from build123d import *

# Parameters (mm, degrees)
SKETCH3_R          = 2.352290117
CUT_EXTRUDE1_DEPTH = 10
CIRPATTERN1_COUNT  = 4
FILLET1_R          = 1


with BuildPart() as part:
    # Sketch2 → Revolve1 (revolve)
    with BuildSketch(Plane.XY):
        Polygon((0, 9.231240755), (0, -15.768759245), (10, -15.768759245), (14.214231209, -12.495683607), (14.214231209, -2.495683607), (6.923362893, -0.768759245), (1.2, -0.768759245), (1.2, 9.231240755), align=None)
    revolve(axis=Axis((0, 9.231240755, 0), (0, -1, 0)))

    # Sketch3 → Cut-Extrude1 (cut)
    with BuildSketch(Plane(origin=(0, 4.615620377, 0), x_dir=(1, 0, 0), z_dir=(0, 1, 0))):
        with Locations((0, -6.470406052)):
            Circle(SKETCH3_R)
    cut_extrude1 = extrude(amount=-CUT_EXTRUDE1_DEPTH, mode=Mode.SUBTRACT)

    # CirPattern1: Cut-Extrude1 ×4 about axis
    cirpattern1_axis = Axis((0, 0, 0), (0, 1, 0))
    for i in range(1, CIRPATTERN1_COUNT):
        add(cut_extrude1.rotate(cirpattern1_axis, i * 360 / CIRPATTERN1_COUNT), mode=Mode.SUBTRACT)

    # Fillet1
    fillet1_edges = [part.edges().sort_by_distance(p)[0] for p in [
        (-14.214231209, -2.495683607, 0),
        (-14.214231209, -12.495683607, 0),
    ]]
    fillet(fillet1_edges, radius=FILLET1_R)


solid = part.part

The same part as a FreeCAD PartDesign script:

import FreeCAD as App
import Part
import Sketcher

V = App.Vector


def edges_at(feature, points):
    """Names of the edges that pass closest to the given points."""
    edges = feature.Shape.Edges
    near = lambda p: min(range(len(edges)), key=lambda i: edges[i].distToShape(Part.Vertex(*p))[0])
    return sorted({f"Edge{near(p) + 1}" for p in points})

doc = App.newDocument("Part")
body = doc.addObject("PartDesign::Body", "Body")

sketch1 = body.newObject("Sketcher::SketchObject", "Sketch")
sketch1.AttachmentSupport = (doc.getObject("XY_Plane"), [""])
sketch1.MapMode = "FlatFace"
sketch1.addGeometry([
    Part.LineSegment(V(0, 9.2, 0), V(0, -15.8, 0)),
    Part.LineSegment(V(0, -15.8, 0), V(10, -15.8, 0)),
    Part.LineSegment(V(10, -15.8, 0), V(14.2, -12.5, 0)),
    Part.LineSegment(V(14.2, -12.5, 0), V(14.2, -2.5, 0)),
    Part.LineSegment(V(14.2, -2.5, 0), V(6.9, -0.8, 0)),
    Part.LineSegment(V(6.9, -0.8, 0), V(1.2, -0.8, 0)),
    Part.LineSegment(V(1.2, -0.8, 0), V(1.2, 9.2, 0)),
    Part.LineSegment(V(1.2, 9.2, 0), V(0, 9.2, 0)),
], False)
sketch1.addConstraint([
    Sketcher.Constraint("Coincident", 0, 2, 1, 1),
    Sketcher.Constraint("Coincident", 1, 2, 2, 1),
    Sketcher.Constraint("Coincident", 2, 2, 3, 1),
    Sketcher.Constraint("Coincident", 3, 2, 4, 1),
    Sketcher.Constraint("Coincident", 4, 2, 5, 1),
    Sketcher.Constraint("Coincident", 5, 2, 6, 1),
    Sketcher.Constraint("Coincident", 6, 2, 7, 1),
    Sketcher.Constraint("Coincident", 7, 2, 0, 1),
    Sketcher.Constraint("Vertical", 0),
    Sketcher.Constraint("Horizontal", 1),
    Sketcher.Constraint("Vertical", 3),
    Sketcher.Constraint("Horizontal", 5),
    Sketcher.Constraint("Vertical", 6),
    Sketcher.Constraint("Horizontal", 7),
    Sketcher.Constraint("PointOnObject", 0, 2, -2),
    Sketcher.Constraint("Equal", 1, 3),
    Sketcher.Constraint("Equal", 3, 6),
    Sketcher.Constraint("DistanceX", 1, 1, 1, 2, 10.0),
    Sketcher.Constraint("DistanceY", 0, 2, 0, 1, 25.0),
    Sketcher.Constraint("DistanceX", 7, 2, 7, 1, 1.2),
    Sketcher.Constraint("Distance", 4, 7.492598),
    Sketcher.Constraint("Distance", 2, 5.335988),
    Sketcher.Constraint("DistanceX", 5, 2, 5, 1, 5.723363),
    Sketcher.Constraint("DistanceY", 0, 2, -1, 1, 15.768759),
])
revolution = body.newObject("PartDesign::Revolution", "Revolution")
revolution.Profile = sketch1
revolution.ReferenceAxis = (sketch1, ["V_Axis"])
revolution.Angle = 360

sketch2 = body.newObject("Sketcher::SketchObject", "Sketch001")
sketch2.AttachmentSupport = (doc.getObject("XZ_Plane"), [""])
sketch2.MapMode = "FlatFace"
sketch2.AttachmentOffset = App.Placement(V(0, 0, -4.61562), App.Rotation())
sketch2.addGeometry(Part.Circle(V(0, 6.5, 0), V(0, 0, 1), 2.4), False)
sketch2.addConstraint([
    Sketcher.Constraint("PointOnObject", 0, 3, -2),
    Sketcher.Constraint("Diameter", 0, 4.70458),
    Sketcher.Constraint("DistanceY", -1, 1, 0, 3, 6.470406),
])
pocket1 = body.newObject("PartDesign::Pocket", "Pocket")
pocket1.Profile = sketch2
pocket1.Length = 10
pocket1.Reversed = True
doc.recompute()

polarpattern = body.newObject("PartDesign::PolarPattern", "PolarPattern")
polarpattern.Originals = [pocket1]
polarpattern.Axis = (doc.getObject("Y_Axis"), [""])
polarpattern.Angle = 360
polarpattern.Occurrences = 4
body.Tip = polarpattern
doc.recompute()

fillet = body.newObject("PartDesign::Fillet", "Fillet")
fillet.Base = (polarpattern, edges_at(polarpattern, [(-14.214, -2.496, 0), (-14.214, -12.496, 0)]))
fillet.Radius = 1

doc.recompute()
